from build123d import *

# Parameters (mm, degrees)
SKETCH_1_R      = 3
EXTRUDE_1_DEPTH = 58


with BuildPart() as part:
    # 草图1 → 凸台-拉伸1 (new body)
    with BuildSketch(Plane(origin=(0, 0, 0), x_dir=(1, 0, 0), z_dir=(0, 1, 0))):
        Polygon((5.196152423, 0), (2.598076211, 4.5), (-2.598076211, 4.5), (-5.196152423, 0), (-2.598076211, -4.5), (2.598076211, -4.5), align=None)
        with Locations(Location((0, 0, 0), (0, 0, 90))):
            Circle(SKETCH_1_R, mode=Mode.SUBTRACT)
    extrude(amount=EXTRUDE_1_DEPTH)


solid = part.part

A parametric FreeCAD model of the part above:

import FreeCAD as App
import Part
import Sketcher

V = App.Vector
Q = App.Units.Quantity

doc = App.newDocument("Part")
body = doc.addObject("PartDesign::Body", "Body")

sketch1 = body.newObject("Sketcher::SketchObject", "Sketch")
sketch1.AttachmentSupport = (doc.getObject("XZ_Plane"), [""])
sketch1.MapMode = "FlatFace"
sketch1.addGeometry(Part.LineSegment(V(5.196152, 0, 0), V(2.598076, -4.5, 0)), False)
sketch1.addGeometry(Part.LineSegment(V(2.598076, -4.5, 0), V(-2.598076, -4.5, 0)), False)
sketch1.addGeometry(Part.LineSegment(V(-2.598076, -4.5, 0), V(-5.196152, 0, 0)), False)
sketch1.addGeometry(Part.LineSegment(V(-5.196152, 0, 0), V(-2.598076, 4.5, 0)), False)
sketch1.addGeometry(Part.LineSegment(V(-2.598076, 4.5, 0), V(2.598076, 4.5, 0)), False)
sketch1.addGeometry(Part.LineSegment(V(2.598076, 4.5, 0), V(5.196152, 0, 0)), False)
sketch1.addGeometry(Part.Circle(V(0, 0, 0), V(0, 0, 1), 3), False)
sketch1.addConstraint(Sketcher.Constraint("Coincident", 0, 2, 1, 1))
sketch1.addConstraint(Sketcher.Constraint("Coincident", 1, 2, 2, 1))
sketch1.addConstraint(Sketcher.Constraint("Coincident", 2, 2, 3, 1))
sketch1.addConstraint(Sketcher.Constraint("Coincident", 3, 2, 4, 1))
sketch1.addConstraint(Sketcher.Constraint("Coincident", 4, 2, 5, 1))
sketch1.addConstraint(Sketcher.Constraint("Coincident", 5, 2, 0, 1))
sketch1.addConstraint(Sketcher.Constraint("Horizontal", 1))
sketch1.addConstraint(Sketcher.Constraint("Horizontal", 4))
sketch1.addConstraint(Sketcher.Constraint("Coincident", 6, 3, -1, 1))
sketch1.addConstraint(Sketcher.Constraint("Symmetric", 0, 2, 3, 2, -1, 1))
sketch1.addConstraint(Sketcher.Constraint("Symmetric", 2, 2, 5, 2, -1, 1))
sketch1.addConstraint(Sketcher.Constraint("PointOnObject", 2, 2, -1))
sketch1.addConstraint(Sketcher.Constraint("Parallel", 2, 5))
sketch1.addConstraint(Sketcher.Constraint("Vertical", 1, 2, 3, 2))
sketch1.addConstraint(Sketcher.Constraint("Diameter", 6, 6.0))
sketch1.addConstraint(Sketcher.Constraint("Angle", 0, Q("-120 deg")))
sketch1.addConstraint(Sketcher.Constraint("DistanceY", 1, 2, 3, 2, 9.0))
sketch1.addConstraint(Sketcher.Constraint("DistanceX", 1, 2, 1, 1, 5.196152))
pad1 = body.newObject("PartDesign::Pad", "Pad")
pad1.Profile = sketch1
pad1.Length = 58
pad1.Reversed = True

doc.recompute()
